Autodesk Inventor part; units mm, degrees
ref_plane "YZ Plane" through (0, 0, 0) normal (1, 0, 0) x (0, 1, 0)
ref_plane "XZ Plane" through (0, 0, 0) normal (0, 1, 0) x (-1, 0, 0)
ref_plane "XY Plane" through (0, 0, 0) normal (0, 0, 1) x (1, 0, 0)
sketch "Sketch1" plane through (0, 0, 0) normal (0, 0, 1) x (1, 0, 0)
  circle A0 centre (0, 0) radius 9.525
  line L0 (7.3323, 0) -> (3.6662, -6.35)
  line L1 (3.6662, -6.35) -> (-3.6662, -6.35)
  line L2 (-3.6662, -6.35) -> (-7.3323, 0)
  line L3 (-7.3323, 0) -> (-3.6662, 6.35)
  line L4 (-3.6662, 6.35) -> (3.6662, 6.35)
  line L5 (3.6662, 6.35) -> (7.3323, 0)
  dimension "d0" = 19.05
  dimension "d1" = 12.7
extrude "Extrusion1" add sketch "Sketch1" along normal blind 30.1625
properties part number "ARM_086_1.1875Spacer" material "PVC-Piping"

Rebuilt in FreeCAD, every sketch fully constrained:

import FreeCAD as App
import Part
import Sketcher

V = App.Vector
Q = App.Units.Quantity


def add_polygon(sketch, points):
    """Adds a closed chain of lines whose ends are joined by coincident constraints."""
    first, n = sketch.GeometryCount, len(points)
    for a, b in zip(points, points[1:] + points[:1]):
        sketch.addGeometry(Part.LineSegment(App.Vector(*a, 0), App.Vector(*b, 0)), False)
    for i in range(n):
        sketch.addConstraint(Sketcher.Constraint("Coincident", first + i, 2, first + (i + 1) % n, 1))

doc = App.newDocument("Part")
body = doc.addObject("PartDesign::Body", "Body")

# Sketch on XY plane
sketch1 = body.newObject("Sketcher::SketchObject", "Sketch")
sketch1.AttachmentSupport = (doc.getObject("XY_Plane"), [""])
sketch1.MapMode = "FlatFace"
sketch1.addGeometry(Part.Circle(V(0, 0, 0), V(0, 0, 1), 10), False)  # 0
add_polygon(sketch1, [(4, 6), (7, 0), (4, -6), (-4, -6), (-7, 0), (-4, 6)])  # lines 1-6
sketch1.addConstraint(Sketcher.Constraint("Horizontal", 3))
sketch1.addConstraint(Sketcher.Constraint("Horizontal", 6))
sketch1.addConstraint(Sketcher.Constraint("Coincident", 0, 3, -1, 1))
sketch1.addConstraint(Sketcher.Constraint("Symmetric", 1, 2, 4, 2, -1, 1))
sketch1.addConstraint(Sketcher.Constraint("Symmetric", 2, 2, 5, 2, -1, 1))
sketch1.addConstraint(Sketcher.Constraint("PointOnObject", 1, 2, -1))
sketch1.addConstraint(Sketcher.Constraint("Parallel", 1, 4))
sketch1.addConstraint(Sketcher.Constraint("Vertical", 3, 2, 5, 2))
sketch1.addConstraint(Sketcher.Constraint("Diameter", 0, Q("0.75 in")))
sketch1.addConstraint(Sketcher.Constraint("DistanceY", 3, 2, 5, 2, Q("0.5 in")))
sketch1.addConstraint(Sketcher.Constraint("Angle", 1, Q("-60.0005 deg")))
sketch1.addConstraint(Sketcher.Constraint("DistanceX", 3, 2, 1, 2, Q("0.433 in")))
pad1 = body.newObject("PartDesign::Pad", "Pad")
pad1.Profile = sketch1
pad1.Length = Q("1.1875 in")

doc.recompute()
